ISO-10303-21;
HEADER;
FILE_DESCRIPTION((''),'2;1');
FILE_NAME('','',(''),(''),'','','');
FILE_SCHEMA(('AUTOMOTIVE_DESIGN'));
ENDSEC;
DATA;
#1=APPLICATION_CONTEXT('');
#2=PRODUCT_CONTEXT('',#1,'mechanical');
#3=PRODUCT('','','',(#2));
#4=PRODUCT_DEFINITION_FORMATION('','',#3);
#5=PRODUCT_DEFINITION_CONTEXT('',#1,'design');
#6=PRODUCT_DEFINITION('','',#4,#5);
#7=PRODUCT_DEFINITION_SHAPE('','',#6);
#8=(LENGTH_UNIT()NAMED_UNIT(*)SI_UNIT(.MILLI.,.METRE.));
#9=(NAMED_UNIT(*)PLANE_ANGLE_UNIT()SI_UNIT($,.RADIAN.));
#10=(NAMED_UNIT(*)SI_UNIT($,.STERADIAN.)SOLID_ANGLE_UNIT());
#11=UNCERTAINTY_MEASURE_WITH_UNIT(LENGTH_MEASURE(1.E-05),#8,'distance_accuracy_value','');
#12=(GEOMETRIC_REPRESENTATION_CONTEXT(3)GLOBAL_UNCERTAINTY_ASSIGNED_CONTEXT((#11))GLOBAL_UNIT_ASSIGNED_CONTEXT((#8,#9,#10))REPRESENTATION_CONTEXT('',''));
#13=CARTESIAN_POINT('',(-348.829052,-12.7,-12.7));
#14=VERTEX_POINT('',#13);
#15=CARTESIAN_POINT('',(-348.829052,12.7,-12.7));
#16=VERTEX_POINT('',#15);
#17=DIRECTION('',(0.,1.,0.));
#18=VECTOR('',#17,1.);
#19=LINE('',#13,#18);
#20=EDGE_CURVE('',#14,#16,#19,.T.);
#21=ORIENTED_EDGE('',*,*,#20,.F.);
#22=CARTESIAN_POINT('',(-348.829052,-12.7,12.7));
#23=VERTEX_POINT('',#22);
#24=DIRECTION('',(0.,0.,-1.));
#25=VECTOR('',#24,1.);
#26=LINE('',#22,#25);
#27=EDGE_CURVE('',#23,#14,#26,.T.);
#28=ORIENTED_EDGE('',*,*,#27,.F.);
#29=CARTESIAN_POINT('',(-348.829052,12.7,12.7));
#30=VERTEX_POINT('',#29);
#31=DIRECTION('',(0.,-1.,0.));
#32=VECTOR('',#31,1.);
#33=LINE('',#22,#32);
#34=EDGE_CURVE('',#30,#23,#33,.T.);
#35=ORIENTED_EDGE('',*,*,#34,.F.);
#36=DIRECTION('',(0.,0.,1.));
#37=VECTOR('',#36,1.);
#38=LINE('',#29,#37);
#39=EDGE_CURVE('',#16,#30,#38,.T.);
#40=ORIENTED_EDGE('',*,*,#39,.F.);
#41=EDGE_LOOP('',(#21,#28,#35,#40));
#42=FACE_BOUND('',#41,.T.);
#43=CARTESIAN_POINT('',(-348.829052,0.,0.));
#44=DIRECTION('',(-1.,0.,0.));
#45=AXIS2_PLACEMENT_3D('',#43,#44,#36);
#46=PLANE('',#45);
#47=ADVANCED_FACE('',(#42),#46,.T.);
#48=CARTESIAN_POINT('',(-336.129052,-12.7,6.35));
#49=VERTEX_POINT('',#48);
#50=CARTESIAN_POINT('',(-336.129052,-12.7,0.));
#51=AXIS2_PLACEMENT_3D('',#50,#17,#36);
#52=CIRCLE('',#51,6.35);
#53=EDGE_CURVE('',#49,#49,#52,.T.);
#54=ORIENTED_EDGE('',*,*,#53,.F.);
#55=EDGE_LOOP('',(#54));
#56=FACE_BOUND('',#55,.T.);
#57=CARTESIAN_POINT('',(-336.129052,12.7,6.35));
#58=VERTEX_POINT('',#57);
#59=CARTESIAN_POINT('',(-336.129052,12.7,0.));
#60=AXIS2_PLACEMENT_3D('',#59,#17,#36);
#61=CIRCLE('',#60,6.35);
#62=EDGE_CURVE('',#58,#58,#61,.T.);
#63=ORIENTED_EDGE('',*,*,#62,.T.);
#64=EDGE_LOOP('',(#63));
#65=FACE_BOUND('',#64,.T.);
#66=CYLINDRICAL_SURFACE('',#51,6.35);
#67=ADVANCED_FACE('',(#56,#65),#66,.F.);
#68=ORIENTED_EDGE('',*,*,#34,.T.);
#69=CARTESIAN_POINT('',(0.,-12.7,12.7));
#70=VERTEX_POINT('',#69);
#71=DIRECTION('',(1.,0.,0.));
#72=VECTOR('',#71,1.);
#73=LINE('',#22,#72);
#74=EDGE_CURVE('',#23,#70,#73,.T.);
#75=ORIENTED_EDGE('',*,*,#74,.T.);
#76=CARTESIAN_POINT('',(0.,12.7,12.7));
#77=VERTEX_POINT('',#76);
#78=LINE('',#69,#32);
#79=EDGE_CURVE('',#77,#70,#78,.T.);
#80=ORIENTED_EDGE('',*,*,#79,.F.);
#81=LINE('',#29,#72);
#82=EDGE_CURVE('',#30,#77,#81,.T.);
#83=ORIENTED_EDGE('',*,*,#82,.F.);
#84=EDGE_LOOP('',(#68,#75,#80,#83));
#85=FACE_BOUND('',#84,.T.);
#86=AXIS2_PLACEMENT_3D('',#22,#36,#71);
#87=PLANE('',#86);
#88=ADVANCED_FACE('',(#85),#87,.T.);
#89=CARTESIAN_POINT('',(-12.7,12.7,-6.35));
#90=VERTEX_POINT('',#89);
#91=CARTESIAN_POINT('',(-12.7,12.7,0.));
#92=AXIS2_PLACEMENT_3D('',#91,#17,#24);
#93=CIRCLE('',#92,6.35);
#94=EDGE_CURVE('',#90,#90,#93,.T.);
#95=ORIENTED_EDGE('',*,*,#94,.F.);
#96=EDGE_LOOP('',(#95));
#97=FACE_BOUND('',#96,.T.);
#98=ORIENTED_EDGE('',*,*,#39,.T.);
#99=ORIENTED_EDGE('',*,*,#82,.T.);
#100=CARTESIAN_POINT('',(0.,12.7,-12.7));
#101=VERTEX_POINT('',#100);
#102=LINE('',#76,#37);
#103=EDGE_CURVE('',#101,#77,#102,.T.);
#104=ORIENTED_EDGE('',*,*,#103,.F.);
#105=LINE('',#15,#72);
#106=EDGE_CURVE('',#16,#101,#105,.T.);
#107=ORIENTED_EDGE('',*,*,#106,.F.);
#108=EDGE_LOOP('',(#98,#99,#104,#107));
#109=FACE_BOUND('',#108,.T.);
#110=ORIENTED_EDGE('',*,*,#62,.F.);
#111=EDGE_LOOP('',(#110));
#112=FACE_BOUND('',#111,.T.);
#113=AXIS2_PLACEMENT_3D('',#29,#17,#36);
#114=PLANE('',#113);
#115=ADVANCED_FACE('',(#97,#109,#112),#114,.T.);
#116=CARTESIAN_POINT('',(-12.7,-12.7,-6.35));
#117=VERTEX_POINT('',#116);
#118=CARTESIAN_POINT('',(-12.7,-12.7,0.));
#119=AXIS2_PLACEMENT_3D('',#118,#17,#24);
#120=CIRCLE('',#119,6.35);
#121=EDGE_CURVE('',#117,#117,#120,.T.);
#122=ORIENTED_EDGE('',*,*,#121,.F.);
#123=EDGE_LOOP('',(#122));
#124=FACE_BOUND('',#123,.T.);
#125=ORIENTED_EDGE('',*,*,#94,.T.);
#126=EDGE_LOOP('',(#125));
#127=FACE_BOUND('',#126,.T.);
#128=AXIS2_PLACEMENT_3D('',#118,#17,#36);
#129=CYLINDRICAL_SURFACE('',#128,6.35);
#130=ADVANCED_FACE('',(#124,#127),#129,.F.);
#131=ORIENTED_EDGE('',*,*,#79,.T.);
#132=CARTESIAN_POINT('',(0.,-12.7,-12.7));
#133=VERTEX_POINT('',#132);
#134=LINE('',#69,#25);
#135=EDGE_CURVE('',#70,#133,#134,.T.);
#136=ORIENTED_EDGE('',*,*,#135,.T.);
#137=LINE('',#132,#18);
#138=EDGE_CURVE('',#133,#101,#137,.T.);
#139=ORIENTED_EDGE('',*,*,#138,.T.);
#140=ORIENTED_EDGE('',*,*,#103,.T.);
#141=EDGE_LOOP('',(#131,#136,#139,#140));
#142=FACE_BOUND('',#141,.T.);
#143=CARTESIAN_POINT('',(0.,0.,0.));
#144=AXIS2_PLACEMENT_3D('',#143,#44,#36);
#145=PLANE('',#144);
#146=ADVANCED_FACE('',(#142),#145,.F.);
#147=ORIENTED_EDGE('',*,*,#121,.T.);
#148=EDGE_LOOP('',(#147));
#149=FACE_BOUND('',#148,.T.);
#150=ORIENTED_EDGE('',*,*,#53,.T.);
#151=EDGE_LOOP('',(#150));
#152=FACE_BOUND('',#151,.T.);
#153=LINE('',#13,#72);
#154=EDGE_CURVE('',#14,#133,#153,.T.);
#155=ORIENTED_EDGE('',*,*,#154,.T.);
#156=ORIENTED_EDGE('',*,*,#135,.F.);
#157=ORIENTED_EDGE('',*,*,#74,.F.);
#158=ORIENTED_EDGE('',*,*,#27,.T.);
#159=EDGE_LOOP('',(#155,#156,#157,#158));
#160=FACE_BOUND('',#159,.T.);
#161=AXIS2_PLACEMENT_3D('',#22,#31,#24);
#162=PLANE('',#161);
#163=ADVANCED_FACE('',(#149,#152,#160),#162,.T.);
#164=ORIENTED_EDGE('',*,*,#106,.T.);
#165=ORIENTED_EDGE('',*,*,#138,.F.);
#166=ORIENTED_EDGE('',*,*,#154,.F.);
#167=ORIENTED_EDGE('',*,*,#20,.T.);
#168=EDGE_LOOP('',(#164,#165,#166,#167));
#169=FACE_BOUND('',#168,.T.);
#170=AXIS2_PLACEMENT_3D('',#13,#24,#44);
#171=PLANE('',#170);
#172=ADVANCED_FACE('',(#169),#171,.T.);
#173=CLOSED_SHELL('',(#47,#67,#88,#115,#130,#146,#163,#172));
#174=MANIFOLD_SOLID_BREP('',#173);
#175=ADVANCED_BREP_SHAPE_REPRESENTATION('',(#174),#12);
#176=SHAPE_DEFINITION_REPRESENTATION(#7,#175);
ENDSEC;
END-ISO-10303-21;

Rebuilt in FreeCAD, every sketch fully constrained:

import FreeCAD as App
import Part
import Sketcher

V = App.Vector
Q = App.Units.Quantity

doc = App.newDocument("Part")
body = doc.addObject("PartDesign::Body", "Body")

sketch1 = body.newObject("Sketcher::SketchObject", "Sketch")
sketch1.AttachmentSupport = (doc.getObject("YZ_Plane"), [""])
sketch1.MapMode = "FlatFace"
sketch1.addGeometry(Part.LineSegment(V(13, 13, 0), V(-13, 13, 0)), False)
sketch1.addGeometry(Part.LineSegment(V(-13, 13, 0), V(-13, -13, 0)), False)
sketch1.addGeometry(Part.LineSegment(V(-13, -13, 0), V(13, -13, 0)), False)
sketch1.addGeometry(Part.LineSegment(V(13, -13, 0), V(13, 13, 0)), False)
sketch1.addConstraint(Sketcher.Constraint("Coincident", 0, 2, 1, 1))
sketch1.addConstraint(Sketcher.Constraint("Coincident", 1, 2, 2, 1))
sketch1.addConstraint(Sketcher.Constraint("Coincident", 2, 2, 3, 1))
sketch1.addConstraint(Sketcher.Constraint("Coincident", 3, 2, 0, 1))
sketch1.addConstraint(Sketcher.Constraint("Horizontal", 0))
sketch1.addConstraint(Sketcher.Constraint("Vertical", 1))
sketch1.addConstraint(Sketcher.Constraint("Horizontal", 2))
sketch1.addConstraint(Sketcher.Constraint("Vertical", 3))
sketch1.addConstraint(Sketcher.Constraint("Symmetric", 0, 2, 2, 2, -1, 1))
sketch1.addConstraint(Sketcher.Constraint("Equal", 2, 1))
sketch1.addConstraint(Sketcher.Constraint("DistanceX", 0, 2, 0, 1, Q("1 in")))
pad1 = body.newObject("PartDesign::Pad", "Pad")
pad1.Profile = sketch1
pad1.Length = 348.829052
pad1.Reversed = True

sketch2 = body.newObject("Sketcher::SketchObject", "Sketch001")
sketch2.AttachmentSupport = (doc.getObject("XZ_Plane"), [""])
sketch2.MapMode = "FlatFace"
sketch2.AttachmentOffset = App.Placement(V(0, 0, -0.5 * 25.4), App.Rotation())
sketch2.addGeometry(Part.Circle(V(-336, 0, 0), V(0, 0, 1), 6), False)
sketch2.addGeometry(Part.Circle(V(-13, 0, 0), V(0, 0, 1), 6), False)
sketch2.addConstraint(Sketcher.Constraint("Equal", 0, 1))
sketch2.addConstraint(Sketcher.Constraint("PointOnObject", 0, 3, -1))
sketch2.addConstraint(Sketcher.Constraint("PointOnObject", 1, 3, -1))
sketch2.addConstraint(Sketcher.Constraint("Diameter", 0, Q("0.5 in")))
sketch2.addConstraint(Sketcher.Constraint("DistanceX", 1, 3, -1, 1, Q("0.5 in")))
sketch2.addConstraint(Sketcher.Constraint("DistanceX", 0, 3, -1, 1, 336.129052))
pocket1 = body.newObject("PartDesign::Pocket", "Pocket")
pocket1.Profile = sketch2
pocket1.Type = "ThroughAll"
pocket1.Reversed = True

doc.recompute()
